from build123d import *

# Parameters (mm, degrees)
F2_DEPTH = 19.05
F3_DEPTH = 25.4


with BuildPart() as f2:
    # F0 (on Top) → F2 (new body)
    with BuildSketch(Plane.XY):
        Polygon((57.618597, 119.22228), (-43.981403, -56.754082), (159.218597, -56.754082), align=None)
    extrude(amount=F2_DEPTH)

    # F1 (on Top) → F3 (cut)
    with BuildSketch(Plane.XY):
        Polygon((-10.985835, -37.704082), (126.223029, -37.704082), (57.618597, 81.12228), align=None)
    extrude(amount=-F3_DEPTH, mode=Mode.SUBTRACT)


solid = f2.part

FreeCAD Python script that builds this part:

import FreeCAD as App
import Part
import Sketcher
Q = App.Units.Quantity


def add_polygon(sketch, points):
    """Adds a closed chain of lines whose ends are joined by coincident constraints."""
    first, n = sketch.GeometryCount, len(points)
    for a, b in zip(points, points[1:] + points[:1]):
        sketch.addGeometry(Part.LineSegment(App.Vector(*a, 0), App.Vector(*b, 0)), False)
    for i in range(n):
        sketch.addConstraint(Sketcher.Constraint("Coincident", first + i, 2, first + (i + 1) % n, 1))

doc = App.newDocument("Part")
body = doc.addObject("PartDesign::Body", "Body")

# Sketch on XY plane
sketch1 = doc.addObject("Sketcher::SketchObject", "Sketch")
body.addObject(sketch1)
sketch1.AttachmentSupport = (doc.XY_Plane, [""])
sketch1.MapMode = "FlatFace"
add_polygon(sketch1, [(58, 119), (-44, -57), (159, -57)])  # lines 0-2
sketch1.addConstraint(Sketcher.Constraint("Horizontal", 1))
sketch1.addConstraint(Sketcher.Constraint("Equal", 0, 2))
sketch1.addConstraint(Sketcher.Constraint("DistanceX", 1, 1, 1, 2, Q("8 in")))
sketch1.addConstraint(Sketcher.Constraint("Distance", 0, Q("8 in")))
sketch1.addConstraint(Sketcher.Constraint("DistanceY", 0, 2, -1, 1, Q("56.754082 mm")))
sketch1.addConstraint(Sketcher.Constraint("DistanceX", 0, 2, -1, 1, Q("43.981403 mm")))
pad1 = doc.addObject("PartDesign::Pad", "Pad")
body.addObject(pad1)
pad1.Profile = sketch1
pad1.Length = Q("0.75 in")

# Sketch on XY plane
sketch2 = doc.addObject("Sketcher::SketchObject", "Sketch001")
body.addObject(sketch2)
sketch2.AttachmentSupport = (doc.XY_Plane, [""])
sketch2.MapMode = "FlatFace"
add_polygon(sketch2, [(-11, -38), (126, -38), (58, 81)])  # lines 0-2
sketch2.addConstraint(Sketcher.Constraint("Horizontal", 0))
sketch2.addConstraint(Sketcher.Constraint("Equal", 1, 2))
sketch2.addConstraint(Sketcher.Constraint("Angle", 1, Q("120 deg")))
sketch2.addConstraint(Sketcher.Constraint("DistanceX", 0, 1, 0, 2, Q("137.208864 mm")))
sketch2.addConstraint(Sketcher.Constraint("DistanceX", -1, 1, 0, 2, Q("126.223029 mm")))
sketch2.addConstraint(Sketcher.Constraint("DistanceY", -1, 1, 1, 2, Q("81.12228 mm")))
pocket1 = doc.addObject("PartDesign::Pocket", "Pocket")
body.addObject(pocket1)
pocket1.Profile = sketch2
pocket1.Length = Q("1 in")

doc.recompute()
